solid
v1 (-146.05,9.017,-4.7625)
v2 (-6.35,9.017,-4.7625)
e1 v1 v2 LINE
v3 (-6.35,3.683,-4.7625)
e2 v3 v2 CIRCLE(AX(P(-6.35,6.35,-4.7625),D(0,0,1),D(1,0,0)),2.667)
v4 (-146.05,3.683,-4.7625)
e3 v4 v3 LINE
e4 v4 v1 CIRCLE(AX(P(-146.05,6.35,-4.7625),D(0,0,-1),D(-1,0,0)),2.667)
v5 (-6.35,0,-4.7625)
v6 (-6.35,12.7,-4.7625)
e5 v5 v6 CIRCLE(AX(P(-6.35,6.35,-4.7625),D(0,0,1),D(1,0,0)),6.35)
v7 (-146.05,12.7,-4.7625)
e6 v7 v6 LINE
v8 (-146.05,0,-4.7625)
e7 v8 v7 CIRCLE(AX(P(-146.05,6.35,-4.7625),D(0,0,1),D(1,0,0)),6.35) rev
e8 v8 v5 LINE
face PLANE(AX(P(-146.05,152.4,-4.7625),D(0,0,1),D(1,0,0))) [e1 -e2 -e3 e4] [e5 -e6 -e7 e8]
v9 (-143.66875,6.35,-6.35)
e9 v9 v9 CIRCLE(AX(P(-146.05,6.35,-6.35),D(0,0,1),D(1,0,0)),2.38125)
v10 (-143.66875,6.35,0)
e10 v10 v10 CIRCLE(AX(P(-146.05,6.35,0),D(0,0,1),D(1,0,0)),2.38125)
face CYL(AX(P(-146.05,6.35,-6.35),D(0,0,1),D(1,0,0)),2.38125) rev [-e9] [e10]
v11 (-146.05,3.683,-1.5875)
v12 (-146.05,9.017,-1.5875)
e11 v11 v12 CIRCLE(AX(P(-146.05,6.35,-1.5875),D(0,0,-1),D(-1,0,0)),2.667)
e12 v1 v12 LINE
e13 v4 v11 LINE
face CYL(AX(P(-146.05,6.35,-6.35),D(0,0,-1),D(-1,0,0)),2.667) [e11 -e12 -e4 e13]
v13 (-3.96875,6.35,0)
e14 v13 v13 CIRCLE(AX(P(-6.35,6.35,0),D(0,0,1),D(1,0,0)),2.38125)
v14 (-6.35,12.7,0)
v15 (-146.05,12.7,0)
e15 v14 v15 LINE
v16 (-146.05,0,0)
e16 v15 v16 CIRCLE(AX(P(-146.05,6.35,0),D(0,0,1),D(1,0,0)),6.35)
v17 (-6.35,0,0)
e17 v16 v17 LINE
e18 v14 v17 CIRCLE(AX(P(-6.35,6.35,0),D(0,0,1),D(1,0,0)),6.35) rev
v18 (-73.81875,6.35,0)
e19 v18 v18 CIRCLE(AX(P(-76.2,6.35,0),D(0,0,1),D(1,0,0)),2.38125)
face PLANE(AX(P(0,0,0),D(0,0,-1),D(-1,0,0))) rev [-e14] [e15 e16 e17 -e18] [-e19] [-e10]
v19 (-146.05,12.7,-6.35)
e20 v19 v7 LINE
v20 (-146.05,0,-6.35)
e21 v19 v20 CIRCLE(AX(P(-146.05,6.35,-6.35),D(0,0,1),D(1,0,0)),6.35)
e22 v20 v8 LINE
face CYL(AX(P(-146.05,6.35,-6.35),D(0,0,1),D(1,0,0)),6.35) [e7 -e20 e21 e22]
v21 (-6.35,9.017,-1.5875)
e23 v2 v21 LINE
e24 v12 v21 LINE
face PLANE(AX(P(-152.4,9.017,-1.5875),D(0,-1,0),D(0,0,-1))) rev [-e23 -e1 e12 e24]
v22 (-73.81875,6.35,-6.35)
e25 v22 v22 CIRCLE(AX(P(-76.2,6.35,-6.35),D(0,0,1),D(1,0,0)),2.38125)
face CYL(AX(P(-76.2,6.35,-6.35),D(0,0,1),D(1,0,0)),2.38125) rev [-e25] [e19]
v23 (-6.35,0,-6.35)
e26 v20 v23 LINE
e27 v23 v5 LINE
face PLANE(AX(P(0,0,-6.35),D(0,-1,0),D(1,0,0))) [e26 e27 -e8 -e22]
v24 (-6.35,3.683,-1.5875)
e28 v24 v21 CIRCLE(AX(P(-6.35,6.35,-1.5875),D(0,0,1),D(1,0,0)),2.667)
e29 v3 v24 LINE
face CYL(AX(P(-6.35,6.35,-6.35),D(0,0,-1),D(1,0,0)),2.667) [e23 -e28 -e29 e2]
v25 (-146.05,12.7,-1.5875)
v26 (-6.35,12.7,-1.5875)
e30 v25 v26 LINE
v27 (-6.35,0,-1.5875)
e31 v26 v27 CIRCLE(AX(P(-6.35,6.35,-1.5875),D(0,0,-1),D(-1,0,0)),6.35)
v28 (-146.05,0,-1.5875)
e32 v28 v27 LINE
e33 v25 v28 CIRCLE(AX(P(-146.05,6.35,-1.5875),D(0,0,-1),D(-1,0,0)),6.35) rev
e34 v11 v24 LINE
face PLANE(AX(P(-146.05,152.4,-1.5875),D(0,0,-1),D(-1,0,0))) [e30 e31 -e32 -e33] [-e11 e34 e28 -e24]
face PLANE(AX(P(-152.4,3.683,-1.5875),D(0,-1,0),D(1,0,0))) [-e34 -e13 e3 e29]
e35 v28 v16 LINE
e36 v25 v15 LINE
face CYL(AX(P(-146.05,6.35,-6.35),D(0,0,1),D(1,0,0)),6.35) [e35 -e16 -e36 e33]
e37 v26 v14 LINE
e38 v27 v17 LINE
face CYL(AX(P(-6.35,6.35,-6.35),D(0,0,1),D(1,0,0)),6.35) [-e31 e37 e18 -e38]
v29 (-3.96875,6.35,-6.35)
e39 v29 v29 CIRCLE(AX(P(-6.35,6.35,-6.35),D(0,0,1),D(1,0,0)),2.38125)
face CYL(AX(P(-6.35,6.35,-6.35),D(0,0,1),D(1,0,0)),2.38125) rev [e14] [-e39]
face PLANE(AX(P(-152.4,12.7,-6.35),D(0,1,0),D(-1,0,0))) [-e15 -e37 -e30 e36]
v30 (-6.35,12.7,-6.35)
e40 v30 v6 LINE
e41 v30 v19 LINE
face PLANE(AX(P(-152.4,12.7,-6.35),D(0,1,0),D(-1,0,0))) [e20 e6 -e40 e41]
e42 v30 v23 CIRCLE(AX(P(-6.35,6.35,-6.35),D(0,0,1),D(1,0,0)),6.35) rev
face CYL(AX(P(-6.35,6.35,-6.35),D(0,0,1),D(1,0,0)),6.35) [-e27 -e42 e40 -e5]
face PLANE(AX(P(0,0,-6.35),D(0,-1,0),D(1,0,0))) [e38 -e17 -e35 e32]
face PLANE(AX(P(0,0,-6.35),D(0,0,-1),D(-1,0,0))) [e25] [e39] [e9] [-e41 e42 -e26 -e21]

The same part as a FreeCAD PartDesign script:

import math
import FreeCAD as App
import Part
import Sketcher
Q = App.Units.Quantity


def add_polygon(sketch, points):
    """Adds a closed chain of lines whose ends are joined by coincident constraints."""
    first, n = sketch.GeometryCount, len(points)
    for a, b in zip(points, points[1:] + points[:1]):
        sketch.addGeometry(Part.LineSegment(App.Vector(*a, 0), App.Vector(*b, 0)), False)
    for i in range(n):
        sketch.addConstraint(Sketcher.Constraint("Coincident", first + i, 2, first + (i + 1) % n, 1))

doc = App.newDocument("Part")
params = doc.addObject("Spreadsheet::Sheet", "Params")
for row, (alias, value) in enumerate([
    ("sketch1_width", "6 in"),
    ("sketch1_height", "0.5 in"),
    ("pad1_length", "0.25 in"),
    ("sketch2_radius", "0.25 in"),
    ("sketch2_diameter", "0.1875 in"),
    ("sketch3_height", "0.125 in"),
    ("groove_angle", "90 deg"),
    ("sketch4_height", "0.125 in"),
    ("groove2_angle", "90 deg"),
    ("sketch5_width", "0.145 in"),
    ("sketch5_height", "0.125 in"),
], start=1):
    params.set(f"A{row}", alias)
    params.set(f"B{row}", "=" + value)
    params.setAlias(f"B{row}", alias)

body = doc.addObject("PartDesign::Body", "Body")

sketch1 = doc.addObject("Sketcher::SketchObject", "Sketch")
body.addObject(sketch1)
sketch1.AttachmentSupport = (doc.XY_Plane, [""])
sketch1.MapMode = "FlatFace"
add_polygon(sketch1, [(-152, 13), (-152, 0), (0, 0), (0, 13)])
sketch1.addConstraint(Sketcher.Constraint("Vertical", 0))
sketch1.addConstraint(Sketcher.Constraint("Horizontal", 1))
sketch1.addConstraint(Sketcher.Constraint("Vertical", 2))
sketch1.addConstraint(Sketcher.Constraint("Horizontal", 3))
sketch1.addConstraint(Sketcher.Constraint("Coincident", 1, 2, -1, 1))
sketch1.addConstraint(Sketcher.Constraint("DistanceX", 1, 1, 1, 2, Q("6 in")))
sketch1.addConstraint(Sketcher.Constraint("DistanceY", 0, 2, 0, 1, Q("0.5 in")))
sketch1.setExpression("Constraints[9]", "Params.sketch1_width")
sketch1.setExpression("Constraints[10]", "Params.sketch1_height")
pad1 = doc.addObject("PartDesign::Pad", "Pad")
body.addObject(pad1)
pad1.Profile = sketch1
pad1.setExpression("Length", "Params.pad1_length")
pad1.Reversed = True

sketch2 = doc.addObject("Sketcher::SketchObject", "Sketch001")
body.addObject(sketch2)
sketch2.AttachmentSupport = (doc.XY_Plane, [""])
sketch2.MapMode = "FlatFace"
sketch2.addGeometry(Part.Circle(App.Vector(-146.1, 6.3, 0), App.Vector(0, 0, 1), 2.4), False)
sketch2.addGeometry(Part.Circle(App.Vector(-76.2, 6.3, 0), App.Vector(0, 0, 1), 2.4), False)
sketch2.addGeometry(Part.Circle(App.Vector(-6.3, 6.3, 0), App.Vector(0, 0, 1), 2.4), False)
sketch2.addGeometry(Part.LineSegment(App.Vector(0, 12.7, 0), App.Vector(-6.3, 12.7, 0)), False)
sketch2.addGeometry(Part.ArcOfCircle(Part.Circle(App.Vector(-6.3, 6.4, 0), App.Vector(0, 0, 1), 6.3), math.radians(0), math.radians(90)), False)
sketch2.addGeometry(Part.LineSegment(App.Vector(0, 6.3, 0), App.Vector(0, 12.7, 0)), False)
sketch2.addGeometry(Part.LineSegment(App.Vector(0, 0, 0), App.Vector(0, 6.3, 0)), False)
sketch2.addGeometry(Part.ArcOfCircle(Part.Circle(App.Vector(-6.3, 6.3, 0), App.Vector(0, 0, 1), 6.3), math.radians(-90), math.radians(0)), False)
sketch2.addGeometry(Part.LineSegment(App.Vector(-6.3, 0, 0), App.Vector(0, 0, 0)), False)
sketch2.addGeometry(Part.ArcOfCircle(Part.Circle(App.Vector(-146.1, 6.4, 0), App.Vector(0, 0, 1), 6.3), math.radians(90), math.radians(180)), False)
sketch2.addGeometry(Part.LineSegment(App.Vector(-146.1, 12.7, 0), App.Vector(-152.4, 12.7, 0)), False)
sketch2.addGeometry(Part.LineSegment(App.Vector(-152.4, 12.7, 0), App.Vector(-152.4, 6.3, 0)), False)
sketch2.addGeometry(Part.ArcOfCircle(Part.Circle(App.Vector(-146.1, 6.3, 0), App.Vector(0, 0, 1), 6.3), math.radians(180), math.radians(270)), False)
sketch2.addGeometry(Part.LineSegment(App.Vector(-152.4, 6.3, 0), App.Vector(-152.4, 0, 0)), False)
sketch2.addGeometry(Part.LineSegment(App.Vector(-152.4, 0, 0), App.Vector(-146.1, 0, 0)), False)
sketch2.addConstraint(Sketcher.Constraint("Tangent", 3, 2, 4, 2))
sketch2.addConstraint(Sketcher.Constraint("Tangent", 4, 1, 5, 1))
sketch2.addConstraint(Sketcher.Constraint("Coincident", 5, 2, 3, 1))
sketch2.addConstraint(Sketcher.Constraint("Tangent", 6, 2, 7, 2))
sketch2.addConstraint(Sketcher.Constraint("Tangent", 7, 1, 8, 1))
sketch2.addConstraint(Sketcher.Constraint("Coincident", 8, 2, 6, 1))
sketch2.addConstraint(Sketcher.Constraint("Tangent", 9, 1, 10, 1))
sketch2.addConstraint(Sketcher.Constraint("Coincident", 10, 2, 11, 1))
sketch2.addConstraint(Sketcher.Constraint("Tangent", 11, 2, 9, 2))
sketch2.addConstraint(Sketcher.Constraint("Tangent", 12, 1, 13, 1))
sketch2.addConstraint(Sketcher.Constraint("Coincident", 13, 2, 14, 1))
sketch2.addConstraint(Sketcher.Constraint("Tangent", 14, 2, 12, 2))
sketch2.addConstraint(Sketcher.Constraint("Horizontal", 3))
sketch2.addConstraint(Sketcher.Constraint("Vertical", 5))
sketch2.addConstraint(Sketcher.Constraint("Vertical", 6))
sketch2.addConstraint(Sketcher.Constraint("Horizontal", 8))
sketch2.addConstraint(Sketcher.Constraint("Horizontal", 10))
sketch2.addConstraint(Sketcher.Constraint("Vertical", 11))
sketch2.addConstraint(Sketcher.Constraint("Vertical", 13))
sketch2.addConstraint(Sketcher.Constraint("Horizontal", 14))
sketch2.addConstraint(Sketcher.Constraint("Coincident", 8, 2, -1, 1))
sketch2.addConstraint(Sketcher.Constraint("Coincident", 4, 3, 2, 3))
sketch2.addConstraint(Sketcher.Constraint("Coincident", 7, 3, 2, 3))
sketch2.addConstraint(Sketcher.Constraint("Coincident", 9, 3, 0, 3))
sketch2.addConstraint(Sketcher.Constraint("Coincident", 12, 3, 0, 3))
sketch2.addConstraint(Sketcher.Constraint("Equal", 0, 1))
sketch2.addConstraint(Sketcher.Constraint("Equal", 1, 2))
sketch2.addConstraint(Sketcher.Constraint("Equal", 4, 7))
sketch2.addConstraint(Sketcher.Constraint("Equal", 7, 9))
sketch2.addConstraint(Sketcher.Constraint("Equal", 9, 12))
sketch2.addConstraint(Sketcher.Constraint("PointOnObject", 13, 2, -1))
sketch2.addConstraint(Sketcher.Constraint("Horizontal", 0, 3, 1, 3))
sketch2.addConstraint(Sketcher.Constraint("Radius", 4, Q("0.25 in")))
sketch2.addConstraint(Sketcher.Constraint("Diameter", 0, Q("0.1875 in")))
sketch2.addConstraint(Sketcher.Constraint("DistanceX", 1, 3, -1, 1, Q("3 in")))
sketch2.addConstraint(Sketcher.Constraint("DistanceX", 10, 2, -1, 1, Q("6 in")))
sketch2.setExpression("Constraints[32]", "Params.sketch2_radius")
sketch2.setExpression("Constraints[33]", "Params.sketch2_diameter")
pocket1 = doc.addObject("PartDesign::Pocket", "Pocket")
body.addObject(pocket1)
pocket1.Profile = sketch2
pocket1.Type = "ThroughAll"

sketch3 = doc.addObject("Sketcher::SketchObject", "Sketch002")
body.addObject(sketch3)
sketch3.AttachmentSupport = (doc.XZ_Plane, [""])
sketch3.MapMode = "FlatFace"
sketch3.AttachmentOffset = App.Placement(App.Vector(0, 0, -0.25 * 25.4), App.Rotation())
add_polygon(sketch3, [(-166.6, -1.6), (-148.7, -1.6), (-148.7, -4.8), (-166.6, -4.8)])
sketch3.addGeometry(Part.LineSegment(App.Vector(-146.1, -4.8, 0), App.Vector(-146.1, -1.6, 0)), True)
sketch3.addConstraint(Sketcher.Constraint("Horizontal", 0))
sketch3.addConstraint(Sketcher.Constraint("Vertical", 1))
sketch3.addConstraint(Sketcher.Constraint("Horizontal", 2))
sketch3.addConstraint(Sketcher.Constraint("Vertical", 3))
sketch3.addConstraint(Sketcher.Constraint("Vertical", 4))
sketch3.addConstraint(Sketcher.Constraint("Horizontal", 2, 2, 4, 1))
sketch3.addConstraint(Sketcher.Constraint("Horizontal", 3, 2, 4, 2))
sketch3.addConstraint(Sketcher.Constraint("DistanceY", 1, 2, 1, 1, Q("0.125 in")))
sketch3.addConstraint(Sketcher.Constraint("DistanceX", 4, 1, -1, 1, Q("5.75 in")))
sketch3.addConstraint(Sketcher.Constraint("DistanceX", 0, 2, -1, 1, Q("5.855 in")))
sketch3.addConstraint(Sketcher.Constraint("DistanceY", 0, 2, -1, 1, Q("0.0625 in")))
sketch3.addConstraint(Sketcher.Constraint("DistanceX", 0, 1, 0, 2, Q("17.853765 mm")))
sketch3.setExpression("Constraints[11]", "Params.sketch3_height")
groove = doc.addObject("PartDesign::Groove", "Groove")
body.addObject(groove)
groove.Profile = sketch3
groove.ReferenceAxis = (sketch3, ["Axis0"])
groove.setExpression("Angle", "Params.groove_angle")

sketch4 = doc.addObject("Sketcher::SketchObject", "Sketch003")
body.addObject(sketch4)
sketch4.AttachmentSupport = (doc.XZ_Plane, [""])
sketch4.MapMode = "FlatFace"
sketch4.AttachmentOffset = App.Placement(App.Vector(0, 0, -0.25 * 25.4), App.Rotation())
add_polygon(sketch4, [(-166.6, -1.6), (-148.7, -1.6), (-148.7, -4.8), (-166.6, -4.8)])
sketch4.addGeometry(Part.LineSegment(App.Vector(-146.1, -1.6, 0), App.Vector(-146.1, -4.8, 0)), True)
sketch4.addConstraint(Sketcher.Constraint("Horizontal", 0))
sketch4.addConstraint(Sketcher.Constraint("Vertical", 1))
sketch4.addConstraint(Sketcher.Constraint("Horizontal", 2))
sketch4.addConstraint(Sketcher.Constraint("Vertical", 3))
sketch4.addConstraint(Sketcher.Constraint("Vertical", 4))
sketch4.addConstraint(Sketcher.Constraint("Horizontal", 3, 2, 4, 1))
sketch4.addConstraint(Sketcher.Constraint("Horizontal", 2, 2, 4, 2))
sketch4.addConstraint(Sketcher.Constraint("DistanceY", 1, 2, 1, 1, Q("0.125 in")))
sketch4.addConstraint(Sketcher.Constraint("DistanceX", 4, 1, -1, 1, Q("5.75 in")))
sketch4.addConstraint(Sketcher.Constraint("DistanceX", 0, 2, -1, 1, Q("5.855 in")))
sketch4.addConstraint(Sketcher.Constraint("DistanceY", 0, 2, -1, 1, Q("0.0625 in")))
sketch4.addConstraint(Sketcher.Constraint("DistanceX", 0, 1, 0, 2, Q("17.853765 mm")))
sketch4.setExpression("Constraints[11]", "Params.sketch4_height")
groove2 = doc.addObject("PartDesign::Groove", "Groove001")
body.addObject(groove2)
groove2.Profile = sketch4
groove2.ReferenceAxis = (sketch4, ["Axis0"])
groove2.setExpression("Angle", "Params.groove2_angle")
doc.recompute()

datumplane = doc.addObject("PartDesign::Plane", "DatumPlane")
body.addObject(datumplane)
datumplane.AttachmentSupport = (doc.YZ_Plane, [""])
datumplane.MapMode = "FlatFace"
datumplane.AttachmentOffset = App.Placement(App.Vector(0, 0, -3 * 25.4), App.Rotation())
mirrored = doc.addObject("PartDesign::Mirrored", "Mirrored")
body.addObject(mirrored)
mirrored.Originals = [groove, groove2]
mirrored.MirrorPlane = (datumplane, [""])
body.Tip = mirrored

sketch5 = doc.addObject("Sketcher::SketchObject", "Sketch004")
body.addObject(sketch5)
sketch5.AttachmentSupport = (doc.YZ_Plane, [""])
sketch5.MapMode = "FlatFace"
add_polygon(sketch5, [(12.7, -1.6), (9, -1.6), (9, -4.8), (12.7, -4.8)])
sketch5.addConstraint(Sketcher.Constraint("Horizontal", 0))
sketch5.addConstraint(Sketcher.Constraint("Vertical", 1))
sketch5.addConstraint(Sketcher.Constraint("Horizontal", 2))
sketch5.addConstraint(Sketcher.Constraint("Vertical", 3))
sketch5.addConstraint(Sketcher.Constraint("DistanceX", -1, 1, 2, 2, Q("0.5 in")))
sketch5.addConstraint(Sketcher.Constraint("DistanceX", 0, 2, 0, 1, Q("0.145 in")))
sketch5.addConstraint(Sketcher.Constraint("DistanceY", 1, 2, 1, 1, Q("0.125 in")))
sketch5.addConstraint(Sketcher.Constraint("DistanceY", 0, 2, -1, 1, Q("0.0625 in")))
sketch5.setExpression("Constraints[9]", "Params.sketch5_width")
sketch5.setExpression("Constraints[10]", "Params.sketch5_height")
pocket2 = doc.addObject("PartDesign::Pocket", "Pocket001")
body.addObject(pocket2)
pocket2.Profile = sketch5
pocket2.Type = "ThroughAll"
doc.recompute()

datumplane2 = doc.addObject("PartDesign::Plane", "DatumPlane001")
body.addObject(datumplane2)
datumplane2.AttachmentSupport = (doc.XZ_Plane, [""])
datumplane2.MapMode = "FlatFace"
datumplane2.AttachmentOffset = App.Placement(App.Vector(0, 0, -0.25 * 25.4), App.Rotation())
mirrored2 = doc.addObject("PartDesign::Mirrored", "Mirrored001")
body.addObject(mirrored2)
mirrored2.Originals = [pocket2]
mirrored2.MirrorPlane = (datumplane2, [""])
body.Tip = mirrored2

doc.recompute()
